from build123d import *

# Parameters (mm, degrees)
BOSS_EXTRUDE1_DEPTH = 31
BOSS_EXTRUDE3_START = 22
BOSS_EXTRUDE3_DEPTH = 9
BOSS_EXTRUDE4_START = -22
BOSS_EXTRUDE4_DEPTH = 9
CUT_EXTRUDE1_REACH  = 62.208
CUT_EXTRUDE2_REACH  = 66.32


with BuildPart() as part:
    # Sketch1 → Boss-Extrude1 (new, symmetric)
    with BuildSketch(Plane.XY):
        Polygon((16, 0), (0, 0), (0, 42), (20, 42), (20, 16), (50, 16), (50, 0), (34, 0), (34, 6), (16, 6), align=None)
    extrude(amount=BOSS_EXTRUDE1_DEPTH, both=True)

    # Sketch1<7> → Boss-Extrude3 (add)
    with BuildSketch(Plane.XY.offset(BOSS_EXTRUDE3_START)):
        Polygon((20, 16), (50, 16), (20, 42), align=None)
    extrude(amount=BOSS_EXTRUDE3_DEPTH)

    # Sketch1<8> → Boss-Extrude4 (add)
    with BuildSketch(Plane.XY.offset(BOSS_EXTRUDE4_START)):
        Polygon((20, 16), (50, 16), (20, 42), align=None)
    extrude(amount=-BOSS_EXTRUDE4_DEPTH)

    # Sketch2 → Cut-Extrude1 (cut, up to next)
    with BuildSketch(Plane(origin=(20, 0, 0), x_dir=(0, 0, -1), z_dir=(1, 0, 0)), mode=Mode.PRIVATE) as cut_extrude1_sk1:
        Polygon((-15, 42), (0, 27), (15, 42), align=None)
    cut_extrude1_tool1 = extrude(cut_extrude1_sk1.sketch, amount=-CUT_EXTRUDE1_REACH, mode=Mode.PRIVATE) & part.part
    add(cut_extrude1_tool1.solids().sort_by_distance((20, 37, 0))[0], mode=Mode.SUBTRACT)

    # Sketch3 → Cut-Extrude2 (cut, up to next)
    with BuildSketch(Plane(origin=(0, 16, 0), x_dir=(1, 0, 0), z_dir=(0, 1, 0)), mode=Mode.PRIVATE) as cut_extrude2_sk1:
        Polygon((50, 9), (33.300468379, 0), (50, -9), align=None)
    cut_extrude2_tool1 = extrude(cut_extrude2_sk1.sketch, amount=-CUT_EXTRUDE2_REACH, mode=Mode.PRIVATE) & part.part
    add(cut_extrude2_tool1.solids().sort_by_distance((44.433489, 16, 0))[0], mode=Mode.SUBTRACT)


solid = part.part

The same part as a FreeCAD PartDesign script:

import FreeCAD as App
import Part
import Sketcher
from FreeCAD import Vector


def add_polygon(sketch, points):
    """Adds a closed chain of lines whose ends are joined by coincident constraints."""
    first, n = sketch.GeometryCount, len(points)
    for a, b in zip(points, points[1:] + points[:1]):
        sketch.addGeometry(Part.LineSegment(App.Vector(*a, 0), App.Vector(*b, 0)), False)
    for i in range(n):
        sketch.addConstraint(Sketcher.Constraint("Coincident", first + i, 2, first + (i + 1) % n, 1))

doc = App.newDocument("Part")
body = doc.addObject("PartDesign::Body", "Body")

sketch1 = doc.addObject("Sketcher::SketchObject", "Sketch")
body.addObject(sketch1)
sketch1.AttachmentSupport = (doc.XY_Plane, [""])
sketch1.MapMode = "FlatFace"
add_polygon(sketch1, [(0, 0), (16, 0), (16, 6), (34, 6), (34, 0), (50, 0), (50, 16), (20, 16), (20, 42), (0, 42)])
sketch1.addConstraint([
    Sketcher.Constraint("Horizontal", 0),
    Sketcher.Constraint("Vertical", 1),
    Sketcher.Constraint("Horizontal", 2),
    Sketcher.Constraint("Vertical", 3),
    Sketcher.Constraint("Horizontal", 4),
    Sketcher.Constraint("Vertical", 5),
    Sketcher.Constraint("Horizontal", 6),
    Sketcher.Constraint("Vertical", 7),
    Sketcher.Constraint("Horizontal", 8),
    Sketcher.Constraint("Vertical", 9),
    Sketcher.Constraint("Coincident", 9, 2, -1, 1),
    Sketcher.Constraint("PointOnObject", 3, 2, -1),
    Sketcher.Constraint("Equal", 0, 4),
    Sketcher.Constraint("Equal", 4, 5),
    Sketcher.Constraint("DistanceX", 0, 1, 0, 2, 16.0),
    Sketcher.Constraint("DistanceX", 2, 1, 2, 2, 18.0),
    Sketcher.Constraint("DistanceX", 6, 2, 6, 1, 30.0),
    Sketcher.Constraint("DistanceY", 1, 1, 1, 2, 6.0),
    Sketcher.Constraint("DistanceY", 7, 1, 7, 2, 26.0),
])
pad1 = doc.addObject("PartDesign::Pad", "Pad")
body.addObject(pad1)
pad1.Profile = sketch1
pad1.Length = 62
pad1.Midplane = True

sketch2 = doc.addObject("Sketcher::SketchObject", "Sketch001")
body.addObject(sketch2)
sketch2.AttachmentSupport = (doc.XY_Plane, [""])
sketch2.MapMode = "FlatFace"
sketch2.AttachmentOffset = App.Placement(Vector(0, 0, 22), App.Rotation())
add_polygon(sketch2, [(20, 16), (50, 16), (20, 42)])
sketch2.addConstraint([
    Sketcher.Constraint("Horizontal", 0),
    Sketcher.Constraint("Vertical", 2),
    Sketcher.Constraint("DistanceX", 0, 1, 0, 2, 30.0),
    Sketcher.Constraint("DistanceY", 2, 2, 2, 1, 26.0),
    Sketcher.Constraint("DistanceX", -1, 1, 0, 2, 50.0),
    Sketcher.Constraint("DistanceY", -1, 1, 0, 2, 16.0),
])
pad2 = doc.addObject("PartDesign::Pad", "Pad001")
body.addObject(pad2)
pad2.Profile = sketch2
pad2.Length = 9

sketch3 = doc.addObject("Sketcher::SketchObject", "Sketch002")
body.addObject(sketch3)
sketch3.AttachmentSupport = (doc.XY_Plane, [""])
sketch3.MapMode = "FlatFace"
sketch3.AttachmentOffset = App.Placement(Vector(0, 0, -22), App.Rotation())
add_polygon(sketch3, [(20, 16), (50, 16), (20, 42)])
sketch3.addConstraint([
    Sketcher.Constraint("Horizontal", 0),
    Sketcher.Constraint("Vertical", 2),
    Sketcher.Constraint("DistanceX", 0, 1, 0, 2, 30.0),
    Sketcher.Constraint("DistanceY", 2, 2, 2, 1, 26.0),
    Sketcher.Constraint("DistanceX", -1, 1, 0, 2, 50.0),
    Sketcher.Constraint("DistanceY", -1, 1, 0, 2, 16.0),
])
pad3 = doc.addObject("PartDesign::Pad", "Pad002")
body.addObject(pad3)
pad3.Profile = sketch3
pad3.Length = 9
pad3.Reversed = True

sketch4 = doc.addObject("Sketcher::SketchObject", "Sketch003")
body.addObject(sketch4)
sketch4.AttachmentSupport = (doc.YZ_Plane, [""])
sketch4.MapMode = "FlatFace"
sketch4.AttachmentOffset = App.Placement(Vector(0, 0, 20), App.Rotation())
add_polygon(sketch4, [(42, 15), (27, 0), (42, -15)])
sketch4.addConstraint([
    Sketcher.Constraint("Vertical", 2),
    Sketcher.Constraint("PointOnObject", 0, 2, -1),
    Sketcher.Constraint("Perpendicular", 0, 1),
    Sketcher.Constraint("Equal", 0, 1),
    Sketcher.Constraint("DistanceY", 2, 1, 2, 2, 30.0),
    Sketcher.Constraint("DistanceX", -1, 1, 0, 2, 27.0),
])
pocket1 = doc.addObject("PartDesign::Pocket", "Pocket")
body.addObject(pocket1)
pocket1.Profile = sketch4
pocket1.Type = "UpToFirst"

sketch5 = doc.addObject("Sketcher::SketchObject", "Sketch004")
body.addObject(sketch5)
sketch5.AttachmentSupport = (doc.XZ_Plane, [""])
sketch5.MapMode = "FlatFace"
sketch5.AttachmentOffset = App.Placement(Vector(0, 0, -16), App.Rotation())
add_polygon(sketch5, [(50, -9), (33, 0), (50, 9)])
sketch5.addConstraint([
    Sketcher.Constraint("Vertical", 2),
    Sketcher.Constraint("PointOnObject", 0, 2, -1),
    Sketcher.Constraint("Equal", 0, 1),
    Sketcher.Constraint("DistanceY", 2, 2, 2, 1, 18.0),
    Sketcher.Constraint("DistanceX", -1, 1, 1, 2, 50.0),
    Sketcher.Constraint("DistanceX", -1, 1, 0, 2, 33.300468),
])
pocket2 = doc.addObject("PartDesign::Pocket", "Pocket001")
body.addObject(pocket2)
pocket2.Profile = sketch5
pocket2.Type = "UpToFirst"
pocket2.Reversed = True

doc.recompute()
